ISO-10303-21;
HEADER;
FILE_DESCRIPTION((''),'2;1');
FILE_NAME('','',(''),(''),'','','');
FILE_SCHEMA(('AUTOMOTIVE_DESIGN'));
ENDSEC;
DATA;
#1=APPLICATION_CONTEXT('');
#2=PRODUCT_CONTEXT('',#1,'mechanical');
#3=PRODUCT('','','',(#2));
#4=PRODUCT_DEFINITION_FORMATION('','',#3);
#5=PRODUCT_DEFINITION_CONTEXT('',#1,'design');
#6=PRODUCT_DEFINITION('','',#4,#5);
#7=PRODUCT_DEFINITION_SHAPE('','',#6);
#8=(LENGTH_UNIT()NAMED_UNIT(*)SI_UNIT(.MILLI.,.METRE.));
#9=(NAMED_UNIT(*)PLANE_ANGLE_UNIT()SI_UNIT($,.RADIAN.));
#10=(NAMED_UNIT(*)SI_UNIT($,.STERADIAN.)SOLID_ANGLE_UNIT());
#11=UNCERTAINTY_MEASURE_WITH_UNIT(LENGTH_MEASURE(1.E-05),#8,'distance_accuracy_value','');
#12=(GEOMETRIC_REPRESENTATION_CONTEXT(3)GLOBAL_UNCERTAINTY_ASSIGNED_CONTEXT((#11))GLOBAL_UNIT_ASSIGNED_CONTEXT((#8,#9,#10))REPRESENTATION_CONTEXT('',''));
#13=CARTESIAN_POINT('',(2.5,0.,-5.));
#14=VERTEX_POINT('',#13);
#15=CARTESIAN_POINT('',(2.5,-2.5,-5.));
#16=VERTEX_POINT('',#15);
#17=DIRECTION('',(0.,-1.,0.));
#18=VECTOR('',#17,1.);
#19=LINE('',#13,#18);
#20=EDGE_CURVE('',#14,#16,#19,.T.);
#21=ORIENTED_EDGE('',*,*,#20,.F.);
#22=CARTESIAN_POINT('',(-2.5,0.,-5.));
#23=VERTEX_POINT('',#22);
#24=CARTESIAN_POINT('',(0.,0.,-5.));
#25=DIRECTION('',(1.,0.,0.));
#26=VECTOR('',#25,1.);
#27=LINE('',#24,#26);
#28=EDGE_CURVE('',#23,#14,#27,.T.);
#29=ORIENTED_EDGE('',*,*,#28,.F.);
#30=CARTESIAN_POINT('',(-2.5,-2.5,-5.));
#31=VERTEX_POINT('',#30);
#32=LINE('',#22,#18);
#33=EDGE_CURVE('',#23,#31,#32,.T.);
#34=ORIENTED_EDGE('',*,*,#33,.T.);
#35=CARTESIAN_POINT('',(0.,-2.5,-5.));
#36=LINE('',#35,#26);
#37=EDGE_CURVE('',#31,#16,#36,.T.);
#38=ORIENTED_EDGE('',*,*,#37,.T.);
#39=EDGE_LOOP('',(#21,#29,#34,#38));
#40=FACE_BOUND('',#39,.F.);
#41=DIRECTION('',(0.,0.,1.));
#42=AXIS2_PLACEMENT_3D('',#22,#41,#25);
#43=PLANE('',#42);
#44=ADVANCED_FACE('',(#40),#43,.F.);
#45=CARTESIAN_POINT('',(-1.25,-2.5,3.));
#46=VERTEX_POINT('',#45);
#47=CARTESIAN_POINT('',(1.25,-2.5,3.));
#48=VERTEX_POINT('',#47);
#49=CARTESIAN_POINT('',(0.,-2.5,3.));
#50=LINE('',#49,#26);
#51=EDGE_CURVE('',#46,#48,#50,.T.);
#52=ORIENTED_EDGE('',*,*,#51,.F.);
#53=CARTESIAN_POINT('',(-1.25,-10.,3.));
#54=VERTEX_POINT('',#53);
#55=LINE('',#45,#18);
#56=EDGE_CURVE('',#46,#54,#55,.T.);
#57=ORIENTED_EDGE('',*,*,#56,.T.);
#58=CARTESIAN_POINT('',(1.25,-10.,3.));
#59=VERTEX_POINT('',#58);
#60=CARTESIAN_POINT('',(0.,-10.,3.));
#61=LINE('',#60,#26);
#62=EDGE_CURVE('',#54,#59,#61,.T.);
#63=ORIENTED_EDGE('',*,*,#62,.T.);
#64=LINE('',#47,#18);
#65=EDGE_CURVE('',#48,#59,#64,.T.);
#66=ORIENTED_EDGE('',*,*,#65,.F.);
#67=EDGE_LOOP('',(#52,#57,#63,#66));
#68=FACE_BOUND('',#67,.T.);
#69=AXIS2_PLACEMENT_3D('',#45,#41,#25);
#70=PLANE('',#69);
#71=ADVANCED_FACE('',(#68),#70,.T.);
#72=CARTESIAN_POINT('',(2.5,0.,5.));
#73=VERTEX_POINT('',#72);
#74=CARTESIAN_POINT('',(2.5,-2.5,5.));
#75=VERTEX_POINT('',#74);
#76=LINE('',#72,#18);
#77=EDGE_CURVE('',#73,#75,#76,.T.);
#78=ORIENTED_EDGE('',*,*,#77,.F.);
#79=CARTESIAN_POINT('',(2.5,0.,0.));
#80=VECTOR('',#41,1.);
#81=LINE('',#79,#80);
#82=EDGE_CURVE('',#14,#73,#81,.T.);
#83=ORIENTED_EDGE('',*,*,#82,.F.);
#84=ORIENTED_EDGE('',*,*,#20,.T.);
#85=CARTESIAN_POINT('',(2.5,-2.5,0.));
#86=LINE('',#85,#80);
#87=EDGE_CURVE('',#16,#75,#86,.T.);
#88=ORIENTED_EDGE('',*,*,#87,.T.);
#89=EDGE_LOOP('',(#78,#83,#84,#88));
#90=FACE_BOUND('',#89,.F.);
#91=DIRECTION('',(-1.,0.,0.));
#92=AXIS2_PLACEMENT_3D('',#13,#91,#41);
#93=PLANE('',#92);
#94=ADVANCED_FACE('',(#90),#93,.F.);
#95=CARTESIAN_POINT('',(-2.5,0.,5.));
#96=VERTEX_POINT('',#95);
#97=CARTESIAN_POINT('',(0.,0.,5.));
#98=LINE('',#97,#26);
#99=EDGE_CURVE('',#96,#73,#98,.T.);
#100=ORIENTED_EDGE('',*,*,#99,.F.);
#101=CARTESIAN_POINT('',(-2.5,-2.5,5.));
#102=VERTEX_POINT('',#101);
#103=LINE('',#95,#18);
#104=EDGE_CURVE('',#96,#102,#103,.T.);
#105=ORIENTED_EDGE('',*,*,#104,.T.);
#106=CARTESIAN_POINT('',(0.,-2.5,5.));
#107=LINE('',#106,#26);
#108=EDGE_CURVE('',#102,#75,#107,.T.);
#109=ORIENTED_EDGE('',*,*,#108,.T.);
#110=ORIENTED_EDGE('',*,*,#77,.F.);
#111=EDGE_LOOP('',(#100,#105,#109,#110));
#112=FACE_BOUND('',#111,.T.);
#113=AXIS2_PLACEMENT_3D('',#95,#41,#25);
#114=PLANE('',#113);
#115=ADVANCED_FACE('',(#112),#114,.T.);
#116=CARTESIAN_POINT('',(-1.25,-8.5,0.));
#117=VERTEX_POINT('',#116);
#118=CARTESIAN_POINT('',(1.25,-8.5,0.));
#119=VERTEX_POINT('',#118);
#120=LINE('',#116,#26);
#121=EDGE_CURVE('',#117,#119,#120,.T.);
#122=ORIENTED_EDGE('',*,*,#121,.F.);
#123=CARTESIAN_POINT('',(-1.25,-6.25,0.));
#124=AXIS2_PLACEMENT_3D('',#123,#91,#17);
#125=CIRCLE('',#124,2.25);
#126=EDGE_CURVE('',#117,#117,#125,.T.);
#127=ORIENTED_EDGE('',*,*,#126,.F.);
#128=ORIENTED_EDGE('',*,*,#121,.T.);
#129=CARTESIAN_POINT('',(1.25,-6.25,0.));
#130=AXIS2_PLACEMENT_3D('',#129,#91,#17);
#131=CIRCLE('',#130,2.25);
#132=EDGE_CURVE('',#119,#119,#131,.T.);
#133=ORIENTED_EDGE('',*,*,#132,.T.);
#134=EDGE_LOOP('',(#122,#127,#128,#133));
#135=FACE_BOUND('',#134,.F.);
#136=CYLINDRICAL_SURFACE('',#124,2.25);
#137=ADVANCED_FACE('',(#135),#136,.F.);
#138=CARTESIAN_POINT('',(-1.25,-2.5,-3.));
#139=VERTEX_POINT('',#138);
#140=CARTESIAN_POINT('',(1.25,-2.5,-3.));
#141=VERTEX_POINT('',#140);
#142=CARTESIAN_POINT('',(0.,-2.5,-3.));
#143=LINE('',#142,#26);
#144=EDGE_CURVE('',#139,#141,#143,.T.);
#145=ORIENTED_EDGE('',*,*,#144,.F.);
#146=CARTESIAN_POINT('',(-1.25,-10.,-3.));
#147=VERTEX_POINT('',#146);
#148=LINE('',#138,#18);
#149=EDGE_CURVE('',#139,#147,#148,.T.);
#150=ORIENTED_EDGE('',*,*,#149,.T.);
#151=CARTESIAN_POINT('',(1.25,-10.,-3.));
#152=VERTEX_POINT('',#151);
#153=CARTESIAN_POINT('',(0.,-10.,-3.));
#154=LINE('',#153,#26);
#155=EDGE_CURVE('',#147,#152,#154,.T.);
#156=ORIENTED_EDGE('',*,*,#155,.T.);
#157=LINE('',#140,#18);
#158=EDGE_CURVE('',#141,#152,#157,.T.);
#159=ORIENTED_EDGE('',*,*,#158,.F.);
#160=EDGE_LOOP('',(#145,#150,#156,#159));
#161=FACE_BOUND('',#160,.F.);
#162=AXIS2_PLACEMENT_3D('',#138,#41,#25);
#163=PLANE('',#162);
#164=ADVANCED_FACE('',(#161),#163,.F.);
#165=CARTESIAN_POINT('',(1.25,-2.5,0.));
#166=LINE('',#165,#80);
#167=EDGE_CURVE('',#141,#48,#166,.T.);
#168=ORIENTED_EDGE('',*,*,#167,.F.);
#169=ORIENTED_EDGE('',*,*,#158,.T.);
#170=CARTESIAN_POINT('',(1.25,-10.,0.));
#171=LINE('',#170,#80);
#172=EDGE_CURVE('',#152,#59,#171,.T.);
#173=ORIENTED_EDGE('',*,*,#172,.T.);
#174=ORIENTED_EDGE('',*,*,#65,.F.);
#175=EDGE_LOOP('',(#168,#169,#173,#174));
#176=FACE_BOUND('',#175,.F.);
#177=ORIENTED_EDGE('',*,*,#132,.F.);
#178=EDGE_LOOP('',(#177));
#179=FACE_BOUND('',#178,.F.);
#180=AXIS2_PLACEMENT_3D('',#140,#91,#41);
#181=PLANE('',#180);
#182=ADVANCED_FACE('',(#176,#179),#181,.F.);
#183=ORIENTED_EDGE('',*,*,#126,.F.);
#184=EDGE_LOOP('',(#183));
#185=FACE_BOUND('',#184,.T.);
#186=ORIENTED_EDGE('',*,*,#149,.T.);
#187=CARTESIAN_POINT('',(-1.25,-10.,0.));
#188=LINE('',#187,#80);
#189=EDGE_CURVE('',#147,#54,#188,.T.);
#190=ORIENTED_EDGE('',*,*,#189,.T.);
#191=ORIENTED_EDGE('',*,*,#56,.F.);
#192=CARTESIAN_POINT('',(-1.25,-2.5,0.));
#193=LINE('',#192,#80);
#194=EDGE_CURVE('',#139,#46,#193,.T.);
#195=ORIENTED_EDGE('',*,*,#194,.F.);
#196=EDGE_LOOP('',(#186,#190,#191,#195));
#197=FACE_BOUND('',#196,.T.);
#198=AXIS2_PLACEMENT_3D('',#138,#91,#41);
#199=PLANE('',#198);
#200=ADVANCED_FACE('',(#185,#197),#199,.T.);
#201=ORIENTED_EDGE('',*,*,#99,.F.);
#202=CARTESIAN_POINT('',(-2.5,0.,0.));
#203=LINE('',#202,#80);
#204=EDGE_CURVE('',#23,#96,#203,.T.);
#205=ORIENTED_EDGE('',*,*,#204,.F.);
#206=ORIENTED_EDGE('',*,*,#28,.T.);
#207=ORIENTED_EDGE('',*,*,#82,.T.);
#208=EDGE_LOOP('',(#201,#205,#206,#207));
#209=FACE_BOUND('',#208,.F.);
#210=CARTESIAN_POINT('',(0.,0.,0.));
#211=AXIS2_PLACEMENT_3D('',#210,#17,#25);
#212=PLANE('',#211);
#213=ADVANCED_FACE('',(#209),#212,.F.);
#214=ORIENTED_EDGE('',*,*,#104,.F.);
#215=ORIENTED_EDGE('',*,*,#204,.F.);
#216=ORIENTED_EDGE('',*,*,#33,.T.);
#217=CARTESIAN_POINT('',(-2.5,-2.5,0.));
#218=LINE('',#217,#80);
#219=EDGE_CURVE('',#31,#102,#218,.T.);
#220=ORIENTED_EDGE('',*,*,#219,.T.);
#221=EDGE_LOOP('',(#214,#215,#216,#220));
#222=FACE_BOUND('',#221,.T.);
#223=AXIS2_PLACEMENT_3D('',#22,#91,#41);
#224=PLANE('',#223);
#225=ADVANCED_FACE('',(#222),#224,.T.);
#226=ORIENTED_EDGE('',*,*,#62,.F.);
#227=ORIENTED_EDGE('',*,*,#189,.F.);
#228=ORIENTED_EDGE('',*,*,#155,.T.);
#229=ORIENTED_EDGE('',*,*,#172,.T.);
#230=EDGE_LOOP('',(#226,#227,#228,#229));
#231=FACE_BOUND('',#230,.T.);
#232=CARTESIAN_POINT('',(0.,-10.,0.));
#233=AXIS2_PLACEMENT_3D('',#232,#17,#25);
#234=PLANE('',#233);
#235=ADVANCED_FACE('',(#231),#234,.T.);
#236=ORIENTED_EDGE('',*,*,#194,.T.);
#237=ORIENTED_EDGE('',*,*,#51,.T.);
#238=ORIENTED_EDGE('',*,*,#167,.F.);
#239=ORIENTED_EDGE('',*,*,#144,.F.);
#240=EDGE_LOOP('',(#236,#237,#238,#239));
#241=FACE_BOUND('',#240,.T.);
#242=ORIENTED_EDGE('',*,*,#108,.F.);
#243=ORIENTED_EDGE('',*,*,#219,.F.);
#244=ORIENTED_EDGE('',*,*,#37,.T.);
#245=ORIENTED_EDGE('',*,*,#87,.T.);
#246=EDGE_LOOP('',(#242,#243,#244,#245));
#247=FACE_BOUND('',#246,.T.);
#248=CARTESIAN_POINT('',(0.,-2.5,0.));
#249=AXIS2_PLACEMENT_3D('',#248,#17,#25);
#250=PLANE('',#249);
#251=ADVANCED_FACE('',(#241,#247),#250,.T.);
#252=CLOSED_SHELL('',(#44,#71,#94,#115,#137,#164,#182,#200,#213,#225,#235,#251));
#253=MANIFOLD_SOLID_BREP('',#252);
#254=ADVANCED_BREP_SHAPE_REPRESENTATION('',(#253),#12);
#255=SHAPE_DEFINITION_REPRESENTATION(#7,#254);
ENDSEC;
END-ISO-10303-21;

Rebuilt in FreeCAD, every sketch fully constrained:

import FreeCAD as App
import Part
import Sketcher

V = App.Vector
Q = App.Units.Quantity


def add_polygon(sketch, points):
    """Adds a closed chain of lines whose ends are joined by coincident constraints."""
    first, n = sketch.GeometryCount, len(points)
    for a, b in zip(points, points[1:] + points[:1]):
        sketch.addGeometry(Part.LineSegment(App.Vector(*a, 0), App.Vector(*b, 0)), False)
    for i in range(n):
        sketch.addConstraint(Sketcher.Constraint("Coincident", first + i, 2, first + (i + 1) % n, 1))

doc = App.newDocument("Part")
params = doc.addObject("Spreadsheet::Sheet", "Params")
for row, (alias, value) in enumerate([
    ("sketch1_width", "5 mm"),
    ("sketch1_height", "10 mm"),
    ("pad1_length", "2.5 mm"),
    ("sketch2_height", "6 mm"),
    ("sketch2_width", "2.5 mm"),
    ("pad2_length", "7.5 mm"),
    ("sketch3_diameter", "4.5 mm"),
    ("pocket1_length", "3.44 mm"),
], start=1):
    params.set(f"A{row}", alias)
    params.set(f"B{row}", "=" + value)
    params.setAlias(f"B{row}", alias)

body = doc.addObject("PartDesign::Body", "Body")

# Sketch on XZ plane
sketch1 = body.newObject("Sketcher::SketchObject", "Sketch")
sketch1.AttachmentSupport = (doc.getObject("XZ_Plane"), [""])
sketch1.MapMode = "FlatFace"
add_polygon(sketch1, [(-2.5, 5), (-2.5, -5), (2.5, -5), (2.5, 5)])  # lines 0-3
sketch1.addConstraint([
    Sketcher.Constraint("Vertical", 0),
    Sketcher.Constraint("Horizontal", 1),
    Sketcher.Constraint("Vertical", 2),
    Sketcher.Constraint("Horizontal", 3),
    Sketcher.Constraint("Symmetric", 0, 2, 2, 2, -1, 1),
    Sketcher.Constraint("DistanceX", 1, 1, 1, 2, Q("5 mm")),
    Sketcher.Constraint("DistanceY", 0, 2, 0, 1, Q("10 mm")),
])
sketch1.setExpression("Constraints[9]", "Params.sketch1_width")
sketch1.setExpression("Constraints[10]", "Params.sketch1_height")
pad1 = body.newObject("PartDesign::Pad", "Pad")
pad1.Profile = sketch1
pad1.setExpression("Length", "Params.pad1_length")

# Sketch on XZ plane
sketch2 = body.newObject("Sketcher::SketchObject", "Sketch001")
sketch2.AttachmentSupport = (doc.getObject("XZ_Plane"), [""])
sketch2.MapMode = "FlatFace"
sketch2.AttachmentOffset = App.Placement(V(0, 0, 2.5), App.Rotation())
add_polygon(sketch2, [(-1.25, 3), (-1.25, -3), (1.25, -3), (1.25, 3)])  # lines 0-3
sketch2.addConstraint([
    Sketcher.Constraint("Vertical", 0),
    Sketcher.Constraint("Horizontal", 1),
    Sketcher.Constraint("Vertical", 2),
    Sketcher.Constraint("Horizontal", 3),
    Sketcher.Constraint("Symmetric", 0, 2, 2, 2, -1, 1),
    Sketcher.Constraint("DistanceY", 0, 2, 0, 1, Q("6 mm")),
    Sketcher.Constraint("DistanceX", 1, 1, 1, 2, Q("2.5 mm")),
])
sketch2.setExpression("Constraints[9]", "Params.sketch2_height")
sketch2.setExpression("Constraints[10]", "Params.sketch2_width")
pad2 = body.newObject("PartDesign::Pad", "Pad001")
pad2.Profile = sketch2
pad2.setExpression("Length", "Params.pad2_length")

# Sketch on YZ plane
sketch3 = body.newObject("Sketcher::SketchObject", "Sketch002")
sketch3.AttachmentSupport = (doc.getObject("YZ_Plane"), [""])
sketch3.MapMode = "FlatFace"
sketch3.AttachmentOffset = App.Placement(V(0, 0, -1.25), App.Rotation())
sketch3.addGeometry(Part.Circle(V(-6.25, 0, 0), V(0, 0, 1), 2.25), False)
sketch3.addConstraint([
    Sketcher.Constraint("PointOnObject", 0, 3, -1),
    Sketcher.Constraint("Diameter", 0, Q("4.5 mm")),
    Sketcher.Constraint("DistanceX", 0, 3, -1, 1, Q("6.25 mm")),
])
sketch3.setExpression("Constraints[1]", "Params.sketch3_diameter")
pocket1 = body.newObject("PartDesign::Pocket", "Pocket")
pocket1.Profile = sketch3
pocket1.setExpression("Length", "Params.pocket1_length")
pocket1.Reversed = True

doc.recompute()
